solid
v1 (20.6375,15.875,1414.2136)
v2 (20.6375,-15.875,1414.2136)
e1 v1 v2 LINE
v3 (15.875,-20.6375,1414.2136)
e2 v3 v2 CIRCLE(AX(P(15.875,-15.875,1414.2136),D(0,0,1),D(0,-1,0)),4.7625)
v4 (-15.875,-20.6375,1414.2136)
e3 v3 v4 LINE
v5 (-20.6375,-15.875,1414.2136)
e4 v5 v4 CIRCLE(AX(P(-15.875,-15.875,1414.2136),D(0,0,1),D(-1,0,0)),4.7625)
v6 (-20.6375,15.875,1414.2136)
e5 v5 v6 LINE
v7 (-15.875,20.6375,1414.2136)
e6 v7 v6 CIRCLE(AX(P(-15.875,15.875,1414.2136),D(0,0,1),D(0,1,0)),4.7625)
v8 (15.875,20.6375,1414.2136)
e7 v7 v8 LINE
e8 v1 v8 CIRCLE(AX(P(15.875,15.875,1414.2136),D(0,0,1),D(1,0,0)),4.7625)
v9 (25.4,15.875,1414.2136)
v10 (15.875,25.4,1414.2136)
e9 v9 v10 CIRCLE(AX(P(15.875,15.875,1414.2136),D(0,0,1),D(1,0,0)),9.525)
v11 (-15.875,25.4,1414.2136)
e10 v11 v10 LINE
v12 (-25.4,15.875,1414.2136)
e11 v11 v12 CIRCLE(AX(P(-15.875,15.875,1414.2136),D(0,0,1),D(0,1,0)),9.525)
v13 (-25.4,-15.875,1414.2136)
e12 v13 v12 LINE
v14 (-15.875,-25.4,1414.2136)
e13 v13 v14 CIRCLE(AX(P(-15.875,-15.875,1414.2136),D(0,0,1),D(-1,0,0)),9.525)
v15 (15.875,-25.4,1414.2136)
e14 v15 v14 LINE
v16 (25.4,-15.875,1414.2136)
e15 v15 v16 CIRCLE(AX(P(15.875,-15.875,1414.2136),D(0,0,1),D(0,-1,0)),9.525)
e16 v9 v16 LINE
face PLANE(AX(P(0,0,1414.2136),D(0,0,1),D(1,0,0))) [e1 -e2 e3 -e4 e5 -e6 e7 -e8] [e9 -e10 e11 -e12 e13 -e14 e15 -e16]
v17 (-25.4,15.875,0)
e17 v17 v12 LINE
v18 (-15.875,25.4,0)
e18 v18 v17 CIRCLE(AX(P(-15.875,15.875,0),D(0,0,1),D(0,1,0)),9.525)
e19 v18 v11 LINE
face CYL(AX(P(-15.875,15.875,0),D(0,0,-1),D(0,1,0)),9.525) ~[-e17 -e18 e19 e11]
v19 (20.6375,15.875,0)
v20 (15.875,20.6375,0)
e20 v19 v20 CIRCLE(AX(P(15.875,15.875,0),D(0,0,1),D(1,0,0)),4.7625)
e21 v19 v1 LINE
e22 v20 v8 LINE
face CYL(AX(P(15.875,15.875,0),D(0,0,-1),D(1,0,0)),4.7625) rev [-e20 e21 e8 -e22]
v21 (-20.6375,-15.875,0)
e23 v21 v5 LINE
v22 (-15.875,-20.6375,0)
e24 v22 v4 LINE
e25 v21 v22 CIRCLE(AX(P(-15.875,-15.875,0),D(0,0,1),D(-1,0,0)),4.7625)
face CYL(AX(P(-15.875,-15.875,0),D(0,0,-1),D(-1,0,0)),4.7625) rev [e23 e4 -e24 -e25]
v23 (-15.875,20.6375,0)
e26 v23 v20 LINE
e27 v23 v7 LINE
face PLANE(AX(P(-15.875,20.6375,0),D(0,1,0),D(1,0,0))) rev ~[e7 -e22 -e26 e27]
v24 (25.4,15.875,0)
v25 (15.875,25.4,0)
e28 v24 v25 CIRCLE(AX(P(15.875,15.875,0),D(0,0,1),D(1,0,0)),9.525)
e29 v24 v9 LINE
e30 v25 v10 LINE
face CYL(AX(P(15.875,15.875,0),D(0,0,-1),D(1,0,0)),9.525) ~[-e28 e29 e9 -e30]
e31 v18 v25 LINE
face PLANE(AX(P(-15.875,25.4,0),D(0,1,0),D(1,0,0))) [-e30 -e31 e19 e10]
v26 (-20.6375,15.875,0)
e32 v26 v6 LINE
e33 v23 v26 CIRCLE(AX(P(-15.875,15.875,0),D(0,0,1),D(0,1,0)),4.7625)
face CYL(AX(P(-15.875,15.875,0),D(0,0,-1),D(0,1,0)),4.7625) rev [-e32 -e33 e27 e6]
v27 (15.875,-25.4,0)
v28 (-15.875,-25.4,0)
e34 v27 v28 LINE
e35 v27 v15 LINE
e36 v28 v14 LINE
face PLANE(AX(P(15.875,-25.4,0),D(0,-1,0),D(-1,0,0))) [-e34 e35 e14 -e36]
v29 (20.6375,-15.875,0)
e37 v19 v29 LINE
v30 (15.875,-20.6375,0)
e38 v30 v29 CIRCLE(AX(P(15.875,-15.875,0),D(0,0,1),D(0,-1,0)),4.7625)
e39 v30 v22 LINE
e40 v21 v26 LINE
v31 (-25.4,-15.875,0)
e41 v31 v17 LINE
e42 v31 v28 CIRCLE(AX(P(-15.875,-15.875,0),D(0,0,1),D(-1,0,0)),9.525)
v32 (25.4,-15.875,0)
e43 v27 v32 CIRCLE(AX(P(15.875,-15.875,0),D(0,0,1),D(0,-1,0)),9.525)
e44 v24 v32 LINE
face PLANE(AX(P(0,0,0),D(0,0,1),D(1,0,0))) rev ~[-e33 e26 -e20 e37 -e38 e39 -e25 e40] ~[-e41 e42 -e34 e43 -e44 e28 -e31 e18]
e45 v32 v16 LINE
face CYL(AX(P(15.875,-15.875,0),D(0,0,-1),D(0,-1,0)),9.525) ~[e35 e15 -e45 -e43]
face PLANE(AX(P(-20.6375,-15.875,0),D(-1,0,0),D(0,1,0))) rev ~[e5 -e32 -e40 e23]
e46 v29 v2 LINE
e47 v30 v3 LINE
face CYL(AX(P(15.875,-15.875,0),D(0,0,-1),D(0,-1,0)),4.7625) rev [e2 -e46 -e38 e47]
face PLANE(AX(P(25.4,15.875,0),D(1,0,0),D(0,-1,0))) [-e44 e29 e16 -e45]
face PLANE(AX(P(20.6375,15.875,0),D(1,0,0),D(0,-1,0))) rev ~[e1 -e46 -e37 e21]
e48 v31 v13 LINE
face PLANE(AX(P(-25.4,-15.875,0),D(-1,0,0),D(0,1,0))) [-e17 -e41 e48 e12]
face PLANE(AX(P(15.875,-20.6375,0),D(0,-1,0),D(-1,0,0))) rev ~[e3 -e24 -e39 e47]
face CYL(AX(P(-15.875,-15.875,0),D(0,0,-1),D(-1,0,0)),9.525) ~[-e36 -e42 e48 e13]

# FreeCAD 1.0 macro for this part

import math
import FreeCAD as App
import Part
import Sketcher

V = App.Vector
Q = App.Units.Quantity

doc = App.newDocument("Part")
body = doc.addObject("PartDesign::Body", "Body")

# Sketch on XY plane
sketch1 = body.newObject("Sketcher::SketchObject", "Sketch")
sketch1.AttachmentSupport = (doc.getObject("XY_Plane"), [""])
sketch1.MapMode = "FlatFace"
sketch1.addGeometry(Part.LineSegment(V(-25.4, 15.9, 0), V(-25.4, -15.9, 0)), False)
sketch1.addGeometry(Part.ArcOfCircle(Part.Circle(V(-15.9, -15.9, 0), V(0, 0, 1), 9.5), math.radians(180), math.radians(270)), False)
sketch1.addGeometry(Part.LineSegment(V(-15.9, -25.4, 0), V(15.9, -25.4, 0)), False)
sketch1.addGeometry(Part.ArcOfCircle(Part.Circle(V(15.9, -15.9, 0), V(0, 0, 1), 9.5), math.radians(-90), math.radians(0)), False)
sketch1.addGeometry(Part.LineSegment(V(25.4, -15.9, 0), V(25.4, 15.9, 0)), False)
sketch1.addGeometry(Part.ArcOfCircle(Part.Circle(V(15.9, 15.9, 0), V(0, 0, 1), 9.5), math.radians(0), math.radians(90)), False)
sketch1.addGeometry(Part.LineSegment(V(15.9, 25.4, 0), V(-15.9, 25.4, 0)), False)
sketch1.addGeometry(Part.ArcOfCircle(Part.Circle(V(-15.9, 15.9, 0), V(0, 0, 1), 9.5), math.radians(90), math.radians(180)), False)
sketch1.addGeometry(Part.ArcOfCircle(Part.Circle(V(-15.9, 15.9, 0), V(0, 0, 1), 4.8), math.radians(90), math.radians(180)), False)
sketch1.addGeometry(Part.LineSegment(V(-15.9, 20.6, 0), V(15.9, 20.6, 0)), False)
sketch1.addGeometry(Part.ArcOfCircle(Part.Circle(V(15.9, 15.9, 0), V(0, 0, 1), 4.8), math.radians(0), math.radians(90)), False)
sketch1.addGeometry(Part.LineSegment(V(20.6, 15.9, 0), V(20.6, -15.9, 0)), False)
sketch1.addGeometry(Part.ArcOfCircle(Part.Circle(V(15.9, -15.9, 0), V(0, 0, 1), 4.8), math.radians(-90), math.radians(0)), False)
sketch1.addGeometry(Part.LineSegment(V(15.9, -20.6, 0), V(-15.9, -20.6, 0)), False)
sketch1.addGeometry(Part.ArcOfCircle(Part.Circle(V(-15.9, -15.9, 0), V(0, 0, 1), 4.8), math.radians(180), math.radians(270)), False)
sketch1.addGeometry(Part.LineSegment(V(-20.6, -15.9, 0), V(-20.6, 15.9, 0)), False)
sketch1.addConstraint(Sketcher.Constraint("Tangent", 0, 2, 1, 1))
sketch1.addConstraint(Sketcher.Constraint("Tangent", 1, 2, 2, 1))
sketch1.addConstraint(Sketcher.Constraint("Tangent", 2, 2, 3, 1))
sketch1.addConstraint(Sketcher.Constraint("Tangent", 3, 2, 4, 1))
sketch1.addConstraint(Sketcher.Constraint("Tangent", 4, 2, 5, 1))
sketch1.addConstraint(Sketcher.Constraint("Tangent", 5, 2, 6, 1))
sketch1.addConstraint(Sketcher.Constraint("Tangent", 6, 2, 7, 1))
sketch1.addConstraint(Sketcher.Constraint("Tangent", 7, 2, 0, 1))
sketch1.addConstraint(Sketcher.Constraint("Tangent", 8, 1, 9, 1))
sketch1.addConstraint(Sketcher.Constraint("Tangent", 9, 2, 10, 2))
sketch1.addConstraint(Sketcher.Constraint("Tangent", 10, 1, 11, 1))
sketch1.addConstraint(Sketcher.Constraint("Tangent", 11, 2, 12, 2))
sketch1.addConstraint(Sketcher.Constraint("Tangent", 12, 1, 13, 1))
sketch1.addConstraint(Sketcher.Constraint("Tangent", 13, 2, 14, 2))
sketch1.addConstraint(Sketcher.Constraint("Tangent", 14, 1, 15, 1))
sketch1.addConstraint(Sketcher.Constraint("Tangent", 15, 2, 8, 2))
sketch1.addConstraint(Sketcher.Constraint("Vertical", 0))
sketch1.addConstraint(Sketcher.Constraint("Horizontal", 2))
sketch1.addConstraint(Sketcher.Constraint("Vertical", 4))
sketch1.addConstraint(Sketcher.Constraint("Horizontal", 6))
sketch1.addConstraint(Sketcher.Constraint("Horizontal", 9))
sketch1.addConstraint(Sketcher.Constraint("Vertical", 11))
sketch1.addConstraint(Sketcher.Constraint("Horizontal", 13))
sketch1.addConstraint(Sketcher.Constraint("Vertical", 15))
sketch1.addConstraint(Sketcher.Constraint("Coincident", 8, 3, 7, 3))
sketch1.addConstraint(Sketcher.Constraint("Coincident", 10, 3, 5, 3))
sketch1.addConstraint(Sketcher.Constraint("Coincident", 12, 3, 3, 3))
sketch1.addConstraint(Sketcher.Constraint("Equal", 1, 3))
sketch1.addConstraint(Sketcher.Constraint("Equal", 3, 5))
sketch1.addConstraint(Sketcher.Constraint("Equal", 5, 7))
sketch1.addConstraint(Sketcher.Constraint("Equal", 12, 14))
sketch1.addConstraint(Sketcher.Constraint("Symmetric", 1, 3, 5, 3, -1, 1))
sketch1.addConstraint(Sketcher.Constraint("Equal", 13, 0))
sketch1.addConstraint(Sketcher.Constraint("DistanceX", 0, 2, -1, 1, Q("1 in")))
sketch1.addConstraint(Sketcher.Constraint("Radius", 1, Q("0.375 in")))
sketch1.addConstraint(Sketcher.Constraint("Radius", 8, Q("0.1875 in")))
pad1 = body.newObject("PartDesign::Pad", "Pad")
pad1.Profile = sketch1
pad1.Length = Q("55.6777008 in")

doc.recompute()
